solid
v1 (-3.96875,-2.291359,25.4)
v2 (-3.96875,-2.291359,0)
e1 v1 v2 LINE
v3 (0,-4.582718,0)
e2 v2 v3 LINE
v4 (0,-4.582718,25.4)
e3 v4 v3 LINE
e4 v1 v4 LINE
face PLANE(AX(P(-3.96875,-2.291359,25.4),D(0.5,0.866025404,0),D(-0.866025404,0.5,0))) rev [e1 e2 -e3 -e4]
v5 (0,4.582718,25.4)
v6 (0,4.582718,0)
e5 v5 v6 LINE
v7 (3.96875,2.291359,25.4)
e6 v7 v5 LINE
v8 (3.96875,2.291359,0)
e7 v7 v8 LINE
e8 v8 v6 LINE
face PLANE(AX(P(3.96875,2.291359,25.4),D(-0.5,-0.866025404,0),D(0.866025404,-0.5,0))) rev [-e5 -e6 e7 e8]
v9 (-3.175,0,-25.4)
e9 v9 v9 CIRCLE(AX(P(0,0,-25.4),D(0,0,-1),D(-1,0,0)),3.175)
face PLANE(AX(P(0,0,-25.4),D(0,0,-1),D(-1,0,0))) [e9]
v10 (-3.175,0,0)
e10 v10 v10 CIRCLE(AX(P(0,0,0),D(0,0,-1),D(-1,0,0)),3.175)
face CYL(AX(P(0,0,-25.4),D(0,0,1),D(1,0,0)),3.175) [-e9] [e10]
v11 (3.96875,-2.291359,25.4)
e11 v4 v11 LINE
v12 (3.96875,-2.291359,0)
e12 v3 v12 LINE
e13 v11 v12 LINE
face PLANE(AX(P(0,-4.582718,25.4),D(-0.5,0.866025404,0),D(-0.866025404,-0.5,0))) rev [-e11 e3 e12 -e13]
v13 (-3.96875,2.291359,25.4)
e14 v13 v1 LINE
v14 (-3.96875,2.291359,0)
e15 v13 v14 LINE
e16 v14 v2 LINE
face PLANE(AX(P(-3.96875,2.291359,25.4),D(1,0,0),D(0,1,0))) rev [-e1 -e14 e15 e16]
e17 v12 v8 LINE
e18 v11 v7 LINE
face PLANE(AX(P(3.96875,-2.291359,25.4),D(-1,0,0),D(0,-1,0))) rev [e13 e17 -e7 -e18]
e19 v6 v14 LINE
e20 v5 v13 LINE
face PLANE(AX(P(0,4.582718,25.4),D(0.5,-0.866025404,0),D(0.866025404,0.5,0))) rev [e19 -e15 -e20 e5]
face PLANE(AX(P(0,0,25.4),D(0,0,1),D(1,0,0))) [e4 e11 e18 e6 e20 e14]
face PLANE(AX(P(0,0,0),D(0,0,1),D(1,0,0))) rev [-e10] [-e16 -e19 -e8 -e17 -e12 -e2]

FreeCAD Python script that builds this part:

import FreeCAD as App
import Part
import Sketcher
Q = App.Units.Quantity


def add_polygon(sketch, points):
    """Adds a closed chain of lines whose ends are joined by coincident constraints."""
    first, n = sketch.GeometryCount, len(points)
    for a, b in zip(points, points[1:] + points[:1]):
        sketch.addGeometry(Part.LineSegment(App.Vector(*a, 0), App.Vector(*b, 0)), False)
    for i in range(n):
        sketch.addConstraint(Sketcher.Constraint("Coincident", first + i, 2, first + (i + 1) % n, 1))

doc = App.newDocument("Part")
body = doc.addObject("PartDesign::Body", "Body")

sketch1 = doc.addObject("Sketcher::SketchObject", "Sketch")
body.addObject(sketch1)
sketch1.AttachmentSupport = (doc.XY_Plane, [""])
sketch1.MapMode = "FlatFace"
add_polygon(sketch1, [(0, 4.582718), (-3.96875, 2.291359), (-3.96875, -2.291359), (0, -4.582718), (3.96875, -2.291359), (3.96875, 2.291359)])
sketch1.addConstraint([
    Sketcher.Constraint("Vertical", 1),
    Sketcher.Constraint("Vertical", 4),
    Sketcher.Constraint("Symmetric", 0, 2, 3, 2, -1, 1),
    Sketcher.Constraint("Symmetric", 2, 2, 5, 2, -1, 1),
    Sketcher.Constraint("PointOnObject", 2, 2, -2),
    Sketcher.Constraint("Parallel", 2, 5),
    Sketcher.Constraint("Horizontal", 1, 2, 3, 2),
    Sketcher.Constraint("Angle", 0, Q("-150 deg")),
    Sketcher.Constraint("DistanceX", 0, 2, -1, 1, Q("0.15625 in")),
    Sketcher.Constraint("DistanceY", 1, 2, 1, 1, Q("4.582718 mm")),
])
pad1 = doc.addObject("PartDesign::Pad", "Pad")
body.addObject(pad1)
pad1.Profile = sketch1
pad1.Length = Q("1 in")

sketch2 = doc.addObject("Sketcher::SketchObject", "Sketch001")
body.addObject(sketch2)
sketch2.AttachmentSupport = (doc.XY_Plane, [""])
sketch2.MapMode = "FlatFace"
sketch2.addGeometry(Part.Circle(App.Vector(0, 0, 0), App.Vector(0, 0, 1), 3.175), False)
sketch2.addConstraint([
    Sketcher.Constraint("Coincident", 0, 3, -1, 1),
    Sketcher.Constraint("Diameter", 0, Q("0.25 in")),
])
pad2 = doc.addObject("PartDesign::Pad", "Pad001")
body.addObject(pad2)
pad2.Profile = sketch2
pad2.Length = Q("1 in")
pad2.Reversed = True

doc.recompute()
